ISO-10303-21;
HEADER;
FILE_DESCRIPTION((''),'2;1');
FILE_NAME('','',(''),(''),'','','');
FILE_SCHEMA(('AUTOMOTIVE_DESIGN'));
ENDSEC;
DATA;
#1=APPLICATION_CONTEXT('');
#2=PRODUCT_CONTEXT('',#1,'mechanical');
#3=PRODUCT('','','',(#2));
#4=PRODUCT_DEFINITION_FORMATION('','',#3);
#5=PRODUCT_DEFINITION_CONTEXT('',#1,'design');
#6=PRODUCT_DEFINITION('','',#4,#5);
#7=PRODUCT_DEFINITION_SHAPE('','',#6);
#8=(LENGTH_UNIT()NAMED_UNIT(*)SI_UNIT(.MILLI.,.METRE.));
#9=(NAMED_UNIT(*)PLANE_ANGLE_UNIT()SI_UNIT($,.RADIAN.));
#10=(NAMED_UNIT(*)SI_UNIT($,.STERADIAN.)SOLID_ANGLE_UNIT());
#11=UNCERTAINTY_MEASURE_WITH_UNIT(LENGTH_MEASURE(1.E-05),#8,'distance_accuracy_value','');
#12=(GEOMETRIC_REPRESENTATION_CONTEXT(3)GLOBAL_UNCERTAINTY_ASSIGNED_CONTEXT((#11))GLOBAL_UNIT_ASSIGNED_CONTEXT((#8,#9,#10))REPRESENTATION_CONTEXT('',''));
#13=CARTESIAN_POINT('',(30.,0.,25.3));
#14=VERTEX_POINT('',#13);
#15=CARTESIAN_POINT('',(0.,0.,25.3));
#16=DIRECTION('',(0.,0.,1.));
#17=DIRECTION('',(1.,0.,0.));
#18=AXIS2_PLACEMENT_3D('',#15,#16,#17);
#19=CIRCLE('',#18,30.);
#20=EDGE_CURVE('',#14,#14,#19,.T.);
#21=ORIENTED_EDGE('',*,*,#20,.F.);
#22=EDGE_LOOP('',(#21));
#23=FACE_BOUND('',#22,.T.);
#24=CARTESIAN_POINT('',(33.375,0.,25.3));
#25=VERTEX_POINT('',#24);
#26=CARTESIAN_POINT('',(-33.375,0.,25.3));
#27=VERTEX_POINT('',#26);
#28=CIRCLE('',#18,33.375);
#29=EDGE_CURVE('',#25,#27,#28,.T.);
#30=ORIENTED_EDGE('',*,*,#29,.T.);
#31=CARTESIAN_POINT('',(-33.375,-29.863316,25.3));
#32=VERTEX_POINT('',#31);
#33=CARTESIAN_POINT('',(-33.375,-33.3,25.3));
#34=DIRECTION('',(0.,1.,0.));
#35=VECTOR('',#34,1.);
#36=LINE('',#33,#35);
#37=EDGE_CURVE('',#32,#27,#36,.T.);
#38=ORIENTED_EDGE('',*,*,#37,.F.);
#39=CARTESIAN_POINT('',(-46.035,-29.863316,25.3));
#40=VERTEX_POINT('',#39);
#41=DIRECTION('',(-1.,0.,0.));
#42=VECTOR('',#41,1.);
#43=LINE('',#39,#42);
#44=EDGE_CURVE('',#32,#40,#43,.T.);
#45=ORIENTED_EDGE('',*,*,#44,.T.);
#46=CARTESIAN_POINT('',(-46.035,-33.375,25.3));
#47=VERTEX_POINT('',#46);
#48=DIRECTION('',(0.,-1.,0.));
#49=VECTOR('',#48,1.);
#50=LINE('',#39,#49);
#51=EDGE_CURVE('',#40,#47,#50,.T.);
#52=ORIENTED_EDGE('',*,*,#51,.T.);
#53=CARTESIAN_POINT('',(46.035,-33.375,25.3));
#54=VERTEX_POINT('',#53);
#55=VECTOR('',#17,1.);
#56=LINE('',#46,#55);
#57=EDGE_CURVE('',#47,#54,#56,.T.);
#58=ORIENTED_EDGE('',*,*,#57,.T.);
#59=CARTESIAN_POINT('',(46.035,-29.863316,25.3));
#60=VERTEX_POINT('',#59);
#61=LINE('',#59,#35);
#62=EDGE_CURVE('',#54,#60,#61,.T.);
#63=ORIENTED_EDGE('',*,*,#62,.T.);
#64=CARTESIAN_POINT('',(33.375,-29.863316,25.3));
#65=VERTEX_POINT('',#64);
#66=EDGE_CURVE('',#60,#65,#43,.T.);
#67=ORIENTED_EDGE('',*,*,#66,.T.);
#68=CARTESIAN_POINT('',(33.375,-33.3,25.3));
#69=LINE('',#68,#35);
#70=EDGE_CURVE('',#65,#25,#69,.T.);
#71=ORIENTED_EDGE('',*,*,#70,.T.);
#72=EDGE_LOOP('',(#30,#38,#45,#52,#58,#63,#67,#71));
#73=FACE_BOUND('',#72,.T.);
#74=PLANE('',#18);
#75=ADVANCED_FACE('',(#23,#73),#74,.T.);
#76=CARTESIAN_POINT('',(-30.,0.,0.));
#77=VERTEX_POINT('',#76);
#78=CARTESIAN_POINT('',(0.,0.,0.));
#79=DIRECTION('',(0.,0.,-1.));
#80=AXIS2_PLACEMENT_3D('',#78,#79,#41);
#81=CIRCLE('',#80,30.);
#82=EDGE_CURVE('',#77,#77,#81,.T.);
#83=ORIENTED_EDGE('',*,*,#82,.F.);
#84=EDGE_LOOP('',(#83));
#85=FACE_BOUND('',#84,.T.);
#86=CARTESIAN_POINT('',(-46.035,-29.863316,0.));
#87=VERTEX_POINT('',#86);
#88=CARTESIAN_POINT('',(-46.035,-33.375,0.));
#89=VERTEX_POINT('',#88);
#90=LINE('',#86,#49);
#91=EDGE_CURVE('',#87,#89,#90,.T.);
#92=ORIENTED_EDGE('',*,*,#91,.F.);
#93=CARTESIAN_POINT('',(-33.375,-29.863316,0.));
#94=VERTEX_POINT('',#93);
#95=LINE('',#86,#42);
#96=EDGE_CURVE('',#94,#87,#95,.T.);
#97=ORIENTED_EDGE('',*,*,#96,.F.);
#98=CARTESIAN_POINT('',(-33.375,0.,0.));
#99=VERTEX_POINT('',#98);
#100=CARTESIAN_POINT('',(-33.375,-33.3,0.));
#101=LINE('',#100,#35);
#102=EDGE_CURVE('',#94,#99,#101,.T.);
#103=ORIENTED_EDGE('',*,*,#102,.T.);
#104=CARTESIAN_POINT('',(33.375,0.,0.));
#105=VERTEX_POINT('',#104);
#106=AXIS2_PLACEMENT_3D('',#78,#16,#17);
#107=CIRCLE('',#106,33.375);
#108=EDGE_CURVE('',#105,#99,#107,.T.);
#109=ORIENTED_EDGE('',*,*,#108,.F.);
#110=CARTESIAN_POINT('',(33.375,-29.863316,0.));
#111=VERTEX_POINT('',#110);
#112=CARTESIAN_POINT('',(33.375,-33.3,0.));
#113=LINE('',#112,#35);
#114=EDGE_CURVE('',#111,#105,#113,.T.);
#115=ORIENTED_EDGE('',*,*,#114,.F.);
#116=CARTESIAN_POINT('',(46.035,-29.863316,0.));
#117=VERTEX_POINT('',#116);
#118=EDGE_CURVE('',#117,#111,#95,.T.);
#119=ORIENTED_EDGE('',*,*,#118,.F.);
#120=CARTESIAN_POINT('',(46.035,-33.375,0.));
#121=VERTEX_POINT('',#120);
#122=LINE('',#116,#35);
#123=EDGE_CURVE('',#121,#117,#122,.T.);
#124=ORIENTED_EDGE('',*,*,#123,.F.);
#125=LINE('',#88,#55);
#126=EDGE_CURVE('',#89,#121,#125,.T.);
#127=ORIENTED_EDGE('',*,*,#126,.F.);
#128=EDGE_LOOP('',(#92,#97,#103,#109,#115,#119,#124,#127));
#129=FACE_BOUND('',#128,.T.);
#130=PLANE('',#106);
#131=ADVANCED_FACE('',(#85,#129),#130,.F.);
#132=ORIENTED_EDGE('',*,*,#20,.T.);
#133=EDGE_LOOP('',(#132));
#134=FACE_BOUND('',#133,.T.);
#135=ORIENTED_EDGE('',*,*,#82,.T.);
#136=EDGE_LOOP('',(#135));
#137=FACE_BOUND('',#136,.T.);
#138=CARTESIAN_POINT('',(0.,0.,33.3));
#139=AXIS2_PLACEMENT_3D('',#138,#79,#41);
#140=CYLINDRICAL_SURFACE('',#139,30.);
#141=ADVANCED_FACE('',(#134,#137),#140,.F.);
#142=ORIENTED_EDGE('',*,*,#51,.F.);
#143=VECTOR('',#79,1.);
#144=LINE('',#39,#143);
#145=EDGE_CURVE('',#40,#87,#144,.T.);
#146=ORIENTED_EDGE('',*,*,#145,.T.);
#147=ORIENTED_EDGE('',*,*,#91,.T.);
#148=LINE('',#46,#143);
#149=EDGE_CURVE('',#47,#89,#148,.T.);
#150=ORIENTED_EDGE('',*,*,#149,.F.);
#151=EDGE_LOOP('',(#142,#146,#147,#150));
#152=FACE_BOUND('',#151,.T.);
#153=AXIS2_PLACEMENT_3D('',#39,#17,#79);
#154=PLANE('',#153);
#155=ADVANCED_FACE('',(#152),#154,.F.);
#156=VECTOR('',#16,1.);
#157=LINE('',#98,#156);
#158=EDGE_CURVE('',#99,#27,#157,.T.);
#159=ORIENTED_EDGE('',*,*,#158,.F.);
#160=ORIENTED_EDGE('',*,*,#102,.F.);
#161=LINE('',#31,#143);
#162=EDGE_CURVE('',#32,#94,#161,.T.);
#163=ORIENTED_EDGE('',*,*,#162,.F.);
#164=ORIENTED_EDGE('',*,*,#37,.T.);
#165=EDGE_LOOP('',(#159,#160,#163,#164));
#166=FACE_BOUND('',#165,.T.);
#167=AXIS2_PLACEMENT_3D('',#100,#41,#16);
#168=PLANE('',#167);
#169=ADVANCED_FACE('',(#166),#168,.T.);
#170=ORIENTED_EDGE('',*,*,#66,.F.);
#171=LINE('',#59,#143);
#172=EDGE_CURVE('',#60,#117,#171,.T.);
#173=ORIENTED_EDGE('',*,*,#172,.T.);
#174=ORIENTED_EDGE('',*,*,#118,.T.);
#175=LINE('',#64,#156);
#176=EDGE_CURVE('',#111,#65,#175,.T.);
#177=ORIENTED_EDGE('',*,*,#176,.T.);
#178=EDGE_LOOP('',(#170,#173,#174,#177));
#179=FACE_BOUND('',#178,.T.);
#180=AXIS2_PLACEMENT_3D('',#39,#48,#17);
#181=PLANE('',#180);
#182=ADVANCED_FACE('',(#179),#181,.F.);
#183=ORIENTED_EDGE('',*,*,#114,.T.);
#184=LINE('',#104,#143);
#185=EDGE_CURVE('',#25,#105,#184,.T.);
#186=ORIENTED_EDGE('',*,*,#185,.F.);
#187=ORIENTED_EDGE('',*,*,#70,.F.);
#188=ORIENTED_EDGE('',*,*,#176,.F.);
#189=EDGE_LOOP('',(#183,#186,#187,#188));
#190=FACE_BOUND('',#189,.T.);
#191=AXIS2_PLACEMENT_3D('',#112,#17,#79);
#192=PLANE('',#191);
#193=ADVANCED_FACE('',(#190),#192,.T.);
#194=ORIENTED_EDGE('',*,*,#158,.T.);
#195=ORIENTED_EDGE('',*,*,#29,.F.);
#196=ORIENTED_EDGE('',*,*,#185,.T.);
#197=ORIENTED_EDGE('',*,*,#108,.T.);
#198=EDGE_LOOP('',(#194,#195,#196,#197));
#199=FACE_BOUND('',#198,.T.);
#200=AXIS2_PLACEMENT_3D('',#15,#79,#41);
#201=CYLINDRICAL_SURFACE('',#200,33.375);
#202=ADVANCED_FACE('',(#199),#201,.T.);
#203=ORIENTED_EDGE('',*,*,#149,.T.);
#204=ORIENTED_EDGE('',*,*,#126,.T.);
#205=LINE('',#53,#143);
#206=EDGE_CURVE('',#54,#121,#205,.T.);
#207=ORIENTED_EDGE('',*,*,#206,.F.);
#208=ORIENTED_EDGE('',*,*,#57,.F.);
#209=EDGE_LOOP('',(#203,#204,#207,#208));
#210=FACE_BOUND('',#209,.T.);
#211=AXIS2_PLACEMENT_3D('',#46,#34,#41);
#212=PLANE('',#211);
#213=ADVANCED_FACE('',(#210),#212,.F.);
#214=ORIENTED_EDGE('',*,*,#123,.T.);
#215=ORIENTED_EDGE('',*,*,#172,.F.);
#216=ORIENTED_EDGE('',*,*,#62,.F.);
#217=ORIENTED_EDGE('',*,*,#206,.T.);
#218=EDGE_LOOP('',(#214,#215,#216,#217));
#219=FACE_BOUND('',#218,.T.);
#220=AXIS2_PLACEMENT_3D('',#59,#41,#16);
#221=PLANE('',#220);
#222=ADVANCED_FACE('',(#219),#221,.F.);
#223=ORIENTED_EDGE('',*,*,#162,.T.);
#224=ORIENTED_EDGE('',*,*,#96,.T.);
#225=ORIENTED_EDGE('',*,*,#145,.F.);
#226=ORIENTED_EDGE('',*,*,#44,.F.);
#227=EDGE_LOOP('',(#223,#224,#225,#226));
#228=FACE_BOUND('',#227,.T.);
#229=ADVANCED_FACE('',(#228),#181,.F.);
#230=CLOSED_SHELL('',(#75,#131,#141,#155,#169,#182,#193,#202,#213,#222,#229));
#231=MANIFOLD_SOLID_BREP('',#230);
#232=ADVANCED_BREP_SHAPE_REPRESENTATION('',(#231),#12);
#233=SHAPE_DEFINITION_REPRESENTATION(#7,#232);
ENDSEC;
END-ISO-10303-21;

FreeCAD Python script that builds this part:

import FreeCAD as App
import Part
import Sketcher

V = App.Vector

doc = App.newDocument("Part")
body = doc.addObject("PartDesign::Body", "Body")

# Sketch on XY plane
sketch1 = doc.addObject("Sketcher::SketchObject", "Sketch")
body.addObject(sketch1)
sketch1.AttachmentSupport = (doc.XY_Plane, [""])
sketch1.MapMode = "FlatFace"
sketch1.addGeometry(Part.Circle(V(0, 0, 0), V(0, 0, 1), 33), False)
sketch1.addConstraint(Sketcher.Constraint("Coincident", 0, 3, -1, 1))
sketch1.addConstraint(Sketcher.Constraint("Diameter", 0, 66.75))
pad1 = doc.addObject("PartDesign::Pad", "Pad")
body.addObject(pad1)
pad1.Profile = sketch1
pad1.Length = 25.3

# Sketch on XY plane
sketch2 = doc.addObject("Sketcher::SketchObject", "Sketch001")
body.addObject(sketch2)
sketch2.AttachmentSupport = (doc.XY_Plane, [""])
sketch2.MapMode = "FlatFace"
sketch2.addGeometry(Part.LineSegment(V(-46, -29.9, 0), V(-46, -33.4, 0)), False)
sketch2.addGeometry(Part.LineSegment(V(-46, -33.4, 0), V(46, -33.4, 0)), False)
sketch2.addGeometry(Part.LineSegment(V(46, -33.4, 0), V(46, -29.9, 0)), False)
sketch2.addGeometry(Part.LineSegment(V(46, -29.9, 0), V(-46, -29.9, 0)), False)
sketch2.addConstraint(Sketcher.Constraint("Coincident", 0, 2, 1, 1))
sketch2.addConstraint(Sketcher.Constraint("Coincident", 1, 2, 2, 1))
sketch2.addConstraint(Sketcher.Constraint("Coincident", 2, 2, 3, 1))
sketch2.addConstraint(Sketcher.Constraint("Coincident", 3, 2, 0, 1))
sketch2.addConstraint(Sketcher.Constraint("Vertical", 0))
sketch2.addConstraint(Sketcher.Constraint("Horizontal", 1))
sketch2.addConstraint(Sketcher.Constraint("Vertical", 2))
sketch2.addConstraint(Sketcher.Constraint("Horizontal", 3))
sketch2.addConstraint(Sketcher.Constraint("DistanceX", 1, 1, 1, 2, 92.07))
sketch2.addConstraint(Sketcher.Constraint("DistanceX", 0, 2, -1, 1, 46.035))
sketch2.addConstraint(Sketcher.Constraint("DistanceY", 0, 2, -1, 1, 33.375))
sketch2.addConstraint(Sketcher.Constraint("DistanceY", 0, 2, 0, 1, 3.511684))
pad2 = doc.addObject("PartDesign::Pad", "Pad001")
body.addObject(pad2)
pad2.Profile = sketch2
pad2.Length = 25.3

# Sketch on XZ plane
sketch3 = doc.addObject("Sketcher::SketchObject", "Sketch002")
body.addObject(sketch3)
sketch3.AttachmentSupport = (doc.XZ_Plane, [""])
sketch3.MapMode = "FlatFace"
sketch3.addGeometry(Part.LineSegment(V(-33, 0, 0), V(-33, 25, 0)), False)
sketch3.addGeometry(Part.LineSegment(V(-33, 25, 0), V(33, 25, 0)), False)
sketch3.addGeometry(Part.LineSegment(V(33, 25, 0), V(33, 0, 0)), False)
sketch3.addGeometry(Part.LineSegment(V(33, 0, 0), V(-33, 0, 0)), False)
sketch3.addConstraint(Sketcher.Constraint("Coincident", 0, 2, 1, 1))
sketch3.addConstraint(Sketcher.Constraint("Coincident", 1, 2, 2, 1))
sketch3.addConstraint(Sketcher.Constraint("Coincident", 2, 2, 3, 1))
sketch3.addConstraint(Sketcher.Constraint("Coincident", 3, 2, 0, 1))
sketch3.addConstraint(Sketcher.Constraint("Vertical", 0))
sketch3.addConstraint(Sketcher.Constraint("Horizontal", 1))
sketch3.addConstraint(Sketcher.Constraint("Vertical", 2))
sketch3.addConstraint(Sketcher.Constraint("Horizontal", 3))
sketch3.addConstraint(Sketcher.Constraint("Symmetric", 2, 2, 3, 2, -1, 1))
sketch3.addConstraint(Sketcher.Constraint("DistanceY", 0, 1, 0, 2, 25.3))
sketch3.addConstraint(Sketcher.Constraint("DistanceX", 1, 1, 1, 2, 66.75))
pad3 = doc.addObject("PartDesign::Pad", "Pad002")
body.addObject(pad3)
pad3.Profile = sketch3
pad3.Length = 33.3

# Sketch on XY plane
sketch4 = doc.addObject("Sketcher::SketchObject", "Sketch003")
body.addObject(sketch4)
sketch4.AttachmentSupport = (doc.XY_Plane, [""])
sketch4.MapMode = "FlatFace"
sketch4.addGeometry(Part.Circle(V(0, 0, 0), V(0, 0, 1), 30), False)
sketch4.addConstraint(Sketcher.Constraint("Coincident", 0, 3, -1, 1))
sketch4.addConstraint(Sketcher.Constraint("Diameter", 0, 60.0))
pocket1 = doc.addObject("PartDesign::Pocket", "Pocket")
body.addObject(pocket1)
pocket1.Profile = sketch4
pocket1.Length = 33.3
pocket1.Reversed = True

doc.recompute()
